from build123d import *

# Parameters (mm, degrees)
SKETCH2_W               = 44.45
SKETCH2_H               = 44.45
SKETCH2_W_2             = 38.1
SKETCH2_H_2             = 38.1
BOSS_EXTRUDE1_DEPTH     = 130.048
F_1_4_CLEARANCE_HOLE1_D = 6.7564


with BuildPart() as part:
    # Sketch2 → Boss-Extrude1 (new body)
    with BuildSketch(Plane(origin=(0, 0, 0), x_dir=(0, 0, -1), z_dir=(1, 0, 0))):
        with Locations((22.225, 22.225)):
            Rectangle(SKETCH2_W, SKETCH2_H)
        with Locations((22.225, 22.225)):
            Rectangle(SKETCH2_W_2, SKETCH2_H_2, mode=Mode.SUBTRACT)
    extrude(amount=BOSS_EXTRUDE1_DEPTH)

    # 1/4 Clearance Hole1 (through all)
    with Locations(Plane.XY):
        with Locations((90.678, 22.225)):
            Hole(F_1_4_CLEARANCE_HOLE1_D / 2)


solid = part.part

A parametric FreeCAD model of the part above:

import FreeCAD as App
import Part
import Sketcher

V = App.Vector
Q = App.Units.Quantity

doc = App.newDocument("Part")
params = doc.addObject("Spreadsheet::Sheet", "Params")
for row, (alias, value) in enumerate([
    ("sketch1_width", "1.5 in"),
    ("sketch1_width2", "1.75 in"),
    ("pad1_length", "5.12 in"),
    ("sketch2_diameter", "0.266 in"),
    ("hole_diameter", "0.266 in"),
], start=1):
    params.set(f"A{row}", alias)
    params.set(f"B{row}", "=" + value)
    params.setAlias(f"B{row}", alias)

body = doc.addObject("PartDesign::Body", "Body")

sketch1 = body.newObject("Sketcher::SketchObject", "Sketch")
sketch1.AttachmentSupport = (doc.getObject("YZ_Plane"), [""])
sketch1.MapMode = "FlatFace"
sketch1.addGeometry([
    Part.LineSegment(V(44, 0, 0), V(0, 0, 0)),
    Part.LineSegment(V(0, 0, 0), V(0, -44, 0)),
    Part.LineSegment(V(0, -44, 0), V(44, -44, 0)),
    Part.LineSegment(V(44, -44, 0), V(44, 0, 0)),
    Part.LineSegment(V(3, -41, 0), V(3, -3, 0)),
    Part.LineSegment(V(3, -3, 0), V(41, -3, 0)),
    Part.LineSegment(V(41, -3, 0), V(41, -41, 0)),
    Part.LineSegment(V(41, -41, 0), V(3, -41, 0)),
], False)
sketch1.addConstraint([
    Sketcher.Constraint("Coincident", 0, 2, 1, 1),
    Sketcher.Constraint("Coincident", 1, 2, 2, 1),
    Sketcher.Constraint("Coincident", 2, 2, 3, 1),
    Sketcher.Constraint("Coincident", 3, 2, 0, 1),
    Sketcher.Constraint("Coincident", 4, 2, 5, 1),
    Sketcher.Constraint("Coincident", 5, 2, 6, 1),
    Sketcher.Constraint("Coincident", 6, 2, 7, 1),
    Sketcher.Constraint("Coincident", 7, 2, 4, 1),
    Sketcher.Constraint("Horizontal", 0),
    Sketcher.Constraint("Vertical", 1),
    Sketcher.Constraint("Horizontal", 2),
    Sketcher.Constraint("Vertical", 3),
    Sketcher.Constraint("Vertical", 4),
    Sketcher.Constraint("Horizontal", 5),
    Sketcher.Constraint("Vertical", 6),
    Sketcher.Constraint("Horizontal", 7),
    Sketcher.Constraint("Coincident", 0, 2, -1, 1),
    Sketcher.Constraint("Equal", 2, 1),
    Sketcher.Constraint("Equal", 7, 4),
    Sketcher.Constraint("DistanceX", 5, 1, 5, 2, Q("1.5 in")),
    Sketcher.Constraint("DistanceX", 0, 2, 0, 1, Q("1.75 in")),
    Sketcher.Constraint("DistanceX", -1, 1, 4, 2, Q("0.125 in")),
    Sketcher.Constraint("DistanceY", 4, 2, -1, 1, Q("0.125 in")),
])
sketch1.setExpression("Constraints[19]", "Params.sketch1_width")
sketch1.setExpression("Constraints[20]", "Params.sketch1_width2")
pad1 = body.newObject("PartDesign::Pad", "Pad")
pad1.Profile = sketch1
pad1.setExpression("Length", "Params.pad1_length")

sketch2 = body.newObject("Sketcher::SketchObject", "Sketch001")
sketch2.AttachmentSupport = (doc.getObject("XY_Plane"), [""])
sketch2.MapMode = "FlatFace"
sketch2.addGeometry(Part.Circle(V(90.7, 22.2, 0), V(0, 0, 1), 3.4), False)
sketch2.addConstraint([
    Sketcher.Constraint("Diameter", 0, Q("0.266 in")),
    Sketcher.Constraint("DistanceX", -1, 1, 0, 3, Q("3.57 in")),
    Sketcher.Constraint("DistanceY", -1, 1, 0, 3, Q("0.875 in")),
])
sketch2.setExpression("Constraints[0]", "Params.sketch2_diameter")
doc.recompute()
hole = body.newObject("PartDesign::Hole", "Hole")
hole.Profile = sketch2
hole.ThreadType = "None"
hole.setExpression("Diameter", "Params.hole_diameter")
hole.DepthType = "ThroughAll"

doc.recompute()
